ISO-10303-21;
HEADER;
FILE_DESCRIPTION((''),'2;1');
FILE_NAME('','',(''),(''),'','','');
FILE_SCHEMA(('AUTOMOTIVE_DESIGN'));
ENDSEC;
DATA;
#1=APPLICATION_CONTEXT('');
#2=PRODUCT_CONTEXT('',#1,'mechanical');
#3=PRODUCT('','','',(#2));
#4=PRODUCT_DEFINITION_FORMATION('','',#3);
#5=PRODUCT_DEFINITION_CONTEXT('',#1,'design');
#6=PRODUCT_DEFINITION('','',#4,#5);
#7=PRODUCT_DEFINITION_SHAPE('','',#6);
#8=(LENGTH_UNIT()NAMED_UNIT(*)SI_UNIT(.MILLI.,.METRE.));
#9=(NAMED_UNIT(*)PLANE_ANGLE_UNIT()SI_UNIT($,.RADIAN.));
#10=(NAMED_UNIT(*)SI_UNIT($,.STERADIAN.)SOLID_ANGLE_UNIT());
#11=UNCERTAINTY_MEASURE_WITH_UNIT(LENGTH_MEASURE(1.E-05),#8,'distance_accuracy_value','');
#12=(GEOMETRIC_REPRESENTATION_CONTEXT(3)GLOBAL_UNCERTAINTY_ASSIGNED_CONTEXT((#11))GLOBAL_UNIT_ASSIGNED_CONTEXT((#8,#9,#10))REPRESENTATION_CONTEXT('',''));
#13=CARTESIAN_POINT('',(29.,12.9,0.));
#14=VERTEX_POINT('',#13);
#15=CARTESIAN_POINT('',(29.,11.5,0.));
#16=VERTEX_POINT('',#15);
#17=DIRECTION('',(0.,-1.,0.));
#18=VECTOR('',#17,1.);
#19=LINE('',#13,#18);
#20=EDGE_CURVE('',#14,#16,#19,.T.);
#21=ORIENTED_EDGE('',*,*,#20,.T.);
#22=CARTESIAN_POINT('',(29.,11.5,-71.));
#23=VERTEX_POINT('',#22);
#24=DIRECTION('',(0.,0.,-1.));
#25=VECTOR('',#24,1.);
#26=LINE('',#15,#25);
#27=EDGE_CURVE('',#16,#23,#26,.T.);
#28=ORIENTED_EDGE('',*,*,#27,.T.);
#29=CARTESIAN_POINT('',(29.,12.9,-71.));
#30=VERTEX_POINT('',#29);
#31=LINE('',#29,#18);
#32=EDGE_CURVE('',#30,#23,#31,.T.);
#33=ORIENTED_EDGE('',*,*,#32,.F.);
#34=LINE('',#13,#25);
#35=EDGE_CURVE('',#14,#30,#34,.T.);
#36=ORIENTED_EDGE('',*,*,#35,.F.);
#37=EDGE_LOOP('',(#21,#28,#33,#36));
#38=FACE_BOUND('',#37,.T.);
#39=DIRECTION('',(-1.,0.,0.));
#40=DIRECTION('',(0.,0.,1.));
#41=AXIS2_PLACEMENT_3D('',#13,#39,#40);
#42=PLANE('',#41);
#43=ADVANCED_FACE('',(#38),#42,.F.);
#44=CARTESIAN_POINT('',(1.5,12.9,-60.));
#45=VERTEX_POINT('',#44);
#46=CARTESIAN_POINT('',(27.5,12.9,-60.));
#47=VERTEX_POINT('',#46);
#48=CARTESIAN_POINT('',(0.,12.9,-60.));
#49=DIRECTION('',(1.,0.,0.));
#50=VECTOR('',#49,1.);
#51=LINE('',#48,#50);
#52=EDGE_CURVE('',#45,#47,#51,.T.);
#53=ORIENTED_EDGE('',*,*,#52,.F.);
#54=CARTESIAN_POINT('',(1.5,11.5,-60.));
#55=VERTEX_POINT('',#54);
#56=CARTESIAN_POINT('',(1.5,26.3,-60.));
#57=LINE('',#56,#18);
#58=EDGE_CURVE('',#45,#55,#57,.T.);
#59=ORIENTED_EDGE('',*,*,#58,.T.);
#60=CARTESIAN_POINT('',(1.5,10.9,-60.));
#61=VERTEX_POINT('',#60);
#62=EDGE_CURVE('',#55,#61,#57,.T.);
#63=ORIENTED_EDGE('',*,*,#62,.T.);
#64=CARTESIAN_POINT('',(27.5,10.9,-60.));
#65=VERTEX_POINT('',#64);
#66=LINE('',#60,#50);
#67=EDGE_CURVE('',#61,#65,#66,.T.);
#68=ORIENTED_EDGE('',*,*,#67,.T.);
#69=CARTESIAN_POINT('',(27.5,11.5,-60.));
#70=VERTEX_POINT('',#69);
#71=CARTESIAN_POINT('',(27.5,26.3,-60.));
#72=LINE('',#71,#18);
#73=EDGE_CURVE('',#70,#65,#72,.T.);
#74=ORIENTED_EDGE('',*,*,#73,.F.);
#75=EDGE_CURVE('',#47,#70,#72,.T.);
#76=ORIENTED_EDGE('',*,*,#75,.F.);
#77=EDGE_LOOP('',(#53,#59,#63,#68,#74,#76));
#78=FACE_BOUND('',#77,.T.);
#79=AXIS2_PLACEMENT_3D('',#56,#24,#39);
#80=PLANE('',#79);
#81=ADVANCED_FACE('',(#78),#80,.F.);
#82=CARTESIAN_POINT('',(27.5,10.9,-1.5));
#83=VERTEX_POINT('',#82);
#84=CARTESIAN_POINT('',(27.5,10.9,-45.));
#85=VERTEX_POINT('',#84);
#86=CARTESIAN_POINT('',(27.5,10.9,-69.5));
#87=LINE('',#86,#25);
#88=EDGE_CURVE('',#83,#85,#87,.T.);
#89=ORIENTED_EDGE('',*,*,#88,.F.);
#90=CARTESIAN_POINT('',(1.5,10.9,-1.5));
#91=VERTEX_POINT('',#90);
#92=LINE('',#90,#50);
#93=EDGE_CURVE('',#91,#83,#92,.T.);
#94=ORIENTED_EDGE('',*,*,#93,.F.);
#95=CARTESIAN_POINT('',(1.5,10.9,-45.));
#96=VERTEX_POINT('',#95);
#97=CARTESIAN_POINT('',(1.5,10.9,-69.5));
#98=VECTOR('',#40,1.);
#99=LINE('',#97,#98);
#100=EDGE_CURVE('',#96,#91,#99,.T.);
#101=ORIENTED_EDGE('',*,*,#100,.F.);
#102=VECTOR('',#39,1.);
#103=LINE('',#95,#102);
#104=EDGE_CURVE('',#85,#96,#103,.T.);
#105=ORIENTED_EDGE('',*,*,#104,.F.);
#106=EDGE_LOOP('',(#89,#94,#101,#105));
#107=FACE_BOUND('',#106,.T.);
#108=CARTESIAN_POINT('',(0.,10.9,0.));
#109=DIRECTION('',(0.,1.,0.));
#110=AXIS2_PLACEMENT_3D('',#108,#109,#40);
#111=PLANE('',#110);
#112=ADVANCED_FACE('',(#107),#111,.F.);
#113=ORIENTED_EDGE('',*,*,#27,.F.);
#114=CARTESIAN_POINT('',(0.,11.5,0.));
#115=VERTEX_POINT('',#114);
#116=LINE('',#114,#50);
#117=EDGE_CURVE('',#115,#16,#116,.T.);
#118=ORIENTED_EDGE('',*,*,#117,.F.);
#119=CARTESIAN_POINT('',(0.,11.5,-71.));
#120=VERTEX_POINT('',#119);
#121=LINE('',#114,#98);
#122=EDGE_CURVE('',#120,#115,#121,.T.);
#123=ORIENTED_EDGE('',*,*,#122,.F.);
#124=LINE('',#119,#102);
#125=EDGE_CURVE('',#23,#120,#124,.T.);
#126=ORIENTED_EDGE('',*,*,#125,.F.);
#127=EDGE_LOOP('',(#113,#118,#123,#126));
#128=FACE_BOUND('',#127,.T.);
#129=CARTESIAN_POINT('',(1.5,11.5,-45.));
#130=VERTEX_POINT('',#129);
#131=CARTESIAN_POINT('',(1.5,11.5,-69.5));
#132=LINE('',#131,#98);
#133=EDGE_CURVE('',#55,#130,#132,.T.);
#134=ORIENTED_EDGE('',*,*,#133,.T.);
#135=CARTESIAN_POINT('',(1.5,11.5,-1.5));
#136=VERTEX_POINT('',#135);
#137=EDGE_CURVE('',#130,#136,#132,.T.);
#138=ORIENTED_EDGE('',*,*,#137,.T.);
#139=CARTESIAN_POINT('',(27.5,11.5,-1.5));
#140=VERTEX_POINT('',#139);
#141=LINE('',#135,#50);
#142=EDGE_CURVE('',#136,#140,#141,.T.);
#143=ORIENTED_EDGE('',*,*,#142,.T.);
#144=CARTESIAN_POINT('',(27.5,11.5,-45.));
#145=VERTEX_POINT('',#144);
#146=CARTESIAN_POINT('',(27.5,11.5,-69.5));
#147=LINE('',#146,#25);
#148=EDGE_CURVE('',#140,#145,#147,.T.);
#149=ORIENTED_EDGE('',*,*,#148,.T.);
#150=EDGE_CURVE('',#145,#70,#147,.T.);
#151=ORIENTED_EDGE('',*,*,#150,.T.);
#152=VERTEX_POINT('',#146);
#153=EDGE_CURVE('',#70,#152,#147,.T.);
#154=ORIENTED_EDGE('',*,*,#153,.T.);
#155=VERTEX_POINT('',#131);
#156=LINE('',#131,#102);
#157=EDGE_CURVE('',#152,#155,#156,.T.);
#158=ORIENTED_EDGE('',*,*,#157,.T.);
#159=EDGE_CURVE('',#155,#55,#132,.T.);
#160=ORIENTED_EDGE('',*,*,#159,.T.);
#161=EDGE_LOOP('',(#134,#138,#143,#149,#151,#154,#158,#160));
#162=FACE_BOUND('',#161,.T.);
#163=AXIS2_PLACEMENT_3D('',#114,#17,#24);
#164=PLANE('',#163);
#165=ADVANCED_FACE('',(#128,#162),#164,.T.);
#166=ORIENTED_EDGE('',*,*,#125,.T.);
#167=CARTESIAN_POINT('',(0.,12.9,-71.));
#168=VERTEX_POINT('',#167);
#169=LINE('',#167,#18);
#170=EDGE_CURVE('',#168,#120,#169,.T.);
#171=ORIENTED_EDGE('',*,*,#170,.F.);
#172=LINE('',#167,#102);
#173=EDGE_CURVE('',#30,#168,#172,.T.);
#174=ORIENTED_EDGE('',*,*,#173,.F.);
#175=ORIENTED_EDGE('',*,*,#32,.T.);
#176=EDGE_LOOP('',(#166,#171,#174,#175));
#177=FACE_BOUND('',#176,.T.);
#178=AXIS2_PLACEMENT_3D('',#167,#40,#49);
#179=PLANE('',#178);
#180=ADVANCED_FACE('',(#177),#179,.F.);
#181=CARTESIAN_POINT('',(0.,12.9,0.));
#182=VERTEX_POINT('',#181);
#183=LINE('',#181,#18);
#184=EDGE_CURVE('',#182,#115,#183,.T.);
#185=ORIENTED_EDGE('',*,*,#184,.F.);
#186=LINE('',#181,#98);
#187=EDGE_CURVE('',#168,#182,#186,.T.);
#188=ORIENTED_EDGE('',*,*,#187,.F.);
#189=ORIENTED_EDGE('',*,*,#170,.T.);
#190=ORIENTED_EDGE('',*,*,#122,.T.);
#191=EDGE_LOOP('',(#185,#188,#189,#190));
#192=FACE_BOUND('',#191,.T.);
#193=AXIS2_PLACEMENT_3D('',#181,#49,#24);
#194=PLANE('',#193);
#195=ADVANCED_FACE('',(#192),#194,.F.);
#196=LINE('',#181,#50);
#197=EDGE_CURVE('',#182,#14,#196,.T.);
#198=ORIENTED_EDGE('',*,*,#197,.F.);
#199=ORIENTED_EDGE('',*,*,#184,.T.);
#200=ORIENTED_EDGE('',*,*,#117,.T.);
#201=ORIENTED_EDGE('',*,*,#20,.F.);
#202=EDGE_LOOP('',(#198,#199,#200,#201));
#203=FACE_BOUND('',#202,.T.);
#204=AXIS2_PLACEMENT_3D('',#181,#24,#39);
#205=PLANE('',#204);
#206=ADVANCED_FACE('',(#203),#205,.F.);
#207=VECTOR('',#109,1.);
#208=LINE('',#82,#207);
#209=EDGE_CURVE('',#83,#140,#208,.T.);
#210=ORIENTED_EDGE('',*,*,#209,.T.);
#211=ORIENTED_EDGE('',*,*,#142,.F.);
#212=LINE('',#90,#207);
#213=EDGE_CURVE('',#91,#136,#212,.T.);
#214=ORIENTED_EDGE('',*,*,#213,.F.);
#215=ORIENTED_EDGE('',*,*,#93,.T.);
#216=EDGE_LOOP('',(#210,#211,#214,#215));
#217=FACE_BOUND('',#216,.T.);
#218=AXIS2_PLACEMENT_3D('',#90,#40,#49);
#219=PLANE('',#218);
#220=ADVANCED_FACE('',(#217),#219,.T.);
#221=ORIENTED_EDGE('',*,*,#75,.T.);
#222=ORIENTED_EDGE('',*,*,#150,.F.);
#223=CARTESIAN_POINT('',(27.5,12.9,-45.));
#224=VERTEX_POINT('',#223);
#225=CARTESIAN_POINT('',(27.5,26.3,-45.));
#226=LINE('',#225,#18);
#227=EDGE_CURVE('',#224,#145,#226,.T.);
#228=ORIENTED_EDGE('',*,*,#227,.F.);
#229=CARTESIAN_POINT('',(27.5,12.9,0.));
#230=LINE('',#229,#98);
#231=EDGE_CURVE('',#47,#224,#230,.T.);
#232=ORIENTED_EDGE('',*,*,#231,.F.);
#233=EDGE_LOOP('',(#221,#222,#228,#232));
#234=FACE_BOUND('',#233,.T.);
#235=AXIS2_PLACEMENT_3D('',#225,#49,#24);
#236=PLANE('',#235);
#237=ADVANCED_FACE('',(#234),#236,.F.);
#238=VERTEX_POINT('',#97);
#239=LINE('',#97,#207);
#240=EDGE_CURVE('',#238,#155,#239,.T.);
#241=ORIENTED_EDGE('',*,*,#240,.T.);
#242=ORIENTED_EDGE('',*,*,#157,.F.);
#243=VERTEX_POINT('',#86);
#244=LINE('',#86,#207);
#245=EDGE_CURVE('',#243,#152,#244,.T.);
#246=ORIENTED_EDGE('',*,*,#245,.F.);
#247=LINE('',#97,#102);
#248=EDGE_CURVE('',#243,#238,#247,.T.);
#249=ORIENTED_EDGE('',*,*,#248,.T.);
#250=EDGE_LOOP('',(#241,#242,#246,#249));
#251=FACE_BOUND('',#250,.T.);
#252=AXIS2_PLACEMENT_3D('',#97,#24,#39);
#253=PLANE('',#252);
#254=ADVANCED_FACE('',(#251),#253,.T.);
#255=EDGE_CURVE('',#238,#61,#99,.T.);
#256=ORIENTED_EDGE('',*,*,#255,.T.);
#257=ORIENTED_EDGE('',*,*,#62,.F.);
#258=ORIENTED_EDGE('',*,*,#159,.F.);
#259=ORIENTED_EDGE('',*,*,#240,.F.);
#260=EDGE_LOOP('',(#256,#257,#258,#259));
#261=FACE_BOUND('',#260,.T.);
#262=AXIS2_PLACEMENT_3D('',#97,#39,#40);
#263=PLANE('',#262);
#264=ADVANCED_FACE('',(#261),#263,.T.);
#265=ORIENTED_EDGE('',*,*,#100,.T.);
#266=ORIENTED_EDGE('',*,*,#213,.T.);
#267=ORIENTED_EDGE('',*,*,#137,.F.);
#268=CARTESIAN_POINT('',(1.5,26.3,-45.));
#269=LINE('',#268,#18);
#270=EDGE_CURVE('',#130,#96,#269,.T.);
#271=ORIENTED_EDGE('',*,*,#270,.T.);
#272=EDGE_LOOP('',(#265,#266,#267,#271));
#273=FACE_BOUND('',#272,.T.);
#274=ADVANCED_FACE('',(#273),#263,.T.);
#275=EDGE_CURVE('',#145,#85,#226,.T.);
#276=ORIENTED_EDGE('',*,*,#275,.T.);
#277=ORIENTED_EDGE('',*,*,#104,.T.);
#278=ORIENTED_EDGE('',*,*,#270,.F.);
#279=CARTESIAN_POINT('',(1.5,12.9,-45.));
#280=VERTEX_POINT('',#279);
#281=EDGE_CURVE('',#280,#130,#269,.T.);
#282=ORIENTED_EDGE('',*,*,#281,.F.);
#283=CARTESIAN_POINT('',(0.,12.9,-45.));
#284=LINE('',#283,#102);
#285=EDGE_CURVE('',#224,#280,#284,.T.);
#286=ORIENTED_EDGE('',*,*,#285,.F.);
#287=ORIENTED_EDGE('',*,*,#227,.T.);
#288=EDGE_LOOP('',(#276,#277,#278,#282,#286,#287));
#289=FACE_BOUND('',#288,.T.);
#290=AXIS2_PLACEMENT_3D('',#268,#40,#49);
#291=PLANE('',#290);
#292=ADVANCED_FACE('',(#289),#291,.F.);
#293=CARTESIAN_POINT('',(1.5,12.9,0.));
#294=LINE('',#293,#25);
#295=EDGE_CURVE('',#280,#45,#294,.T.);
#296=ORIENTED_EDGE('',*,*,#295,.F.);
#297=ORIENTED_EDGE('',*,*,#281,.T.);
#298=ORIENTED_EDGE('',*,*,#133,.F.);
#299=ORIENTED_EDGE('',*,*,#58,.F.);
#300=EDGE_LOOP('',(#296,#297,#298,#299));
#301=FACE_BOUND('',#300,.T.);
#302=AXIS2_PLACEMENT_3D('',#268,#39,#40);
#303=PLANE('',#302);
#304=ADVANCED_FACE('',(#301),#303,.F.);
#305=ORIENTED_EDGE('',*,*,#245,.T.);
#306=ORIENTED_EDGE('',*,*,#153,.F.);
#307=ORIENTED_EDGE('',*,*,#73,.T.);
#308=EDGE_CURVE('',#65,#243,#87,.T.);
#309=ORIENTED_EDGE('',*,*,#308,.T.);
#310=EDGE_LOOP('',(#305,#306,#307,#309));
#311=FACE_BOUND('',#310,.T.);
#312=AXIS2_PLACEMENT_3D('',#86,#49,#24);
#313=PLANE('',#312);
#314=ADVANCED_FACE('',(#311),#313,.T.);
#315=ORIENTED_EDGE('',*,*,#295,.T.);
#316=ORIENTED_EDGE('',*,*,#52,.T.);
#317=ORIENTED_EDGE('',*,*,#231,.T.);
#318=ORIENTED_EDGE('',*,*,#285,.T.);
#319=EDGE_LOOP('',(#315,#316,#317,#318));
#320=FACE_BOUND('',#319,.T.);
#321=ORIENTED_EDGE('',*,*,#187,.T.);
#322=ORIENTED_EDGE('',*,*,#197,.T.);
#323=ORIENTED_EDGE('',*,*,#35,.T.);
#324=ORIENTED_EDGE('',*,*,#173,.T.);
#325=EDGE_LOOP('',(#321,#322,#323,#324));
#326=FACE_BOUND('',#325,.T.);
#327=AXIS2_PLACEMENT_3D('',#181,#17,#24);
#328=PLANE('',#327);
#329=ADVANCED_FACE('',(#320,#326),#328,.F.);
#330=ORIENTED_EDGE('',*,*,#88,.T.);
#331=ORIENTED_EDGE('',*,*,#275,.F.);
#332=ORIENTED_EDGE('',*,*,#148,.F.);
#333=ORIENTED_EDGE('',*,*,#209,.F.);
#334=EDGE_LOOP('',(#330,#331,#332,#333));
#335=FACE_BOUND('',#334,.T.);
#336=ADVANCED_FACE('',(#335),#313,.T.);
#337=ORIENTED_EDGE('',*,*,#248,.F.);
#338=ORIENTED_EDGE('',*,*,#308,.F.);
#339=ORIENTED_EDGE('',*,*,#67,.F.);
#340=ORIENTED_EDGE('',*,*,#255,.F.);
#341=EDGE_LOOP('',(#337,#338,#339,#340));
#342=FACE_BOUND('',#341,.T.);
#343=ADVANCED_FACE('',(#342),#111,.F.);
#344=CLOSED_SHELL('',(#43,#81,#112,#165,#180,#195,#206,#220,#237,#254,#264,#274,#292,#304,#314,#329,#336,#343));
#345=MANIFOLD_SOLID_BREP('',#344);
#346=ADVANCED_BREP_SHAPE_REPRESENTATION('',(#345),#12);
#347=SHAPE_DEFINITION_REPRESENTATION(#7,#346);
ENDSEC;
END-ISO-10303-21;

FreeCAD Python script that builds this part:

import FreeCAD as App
import Part
import Sketcher

V = App.Vector


def add_polygon(sketch, points):
    """Adds a closed chain of lines whose ends are joined by coincident constraints."""
    first, n = sketch.GeometryCount, len(points)
    for a, b in zip(points, points[1:] + points[:1]):
        sketch.addGeometry(Part.LineSegment(App.Vector(*a, 0), App.Vector(*b, 0)), False)
    for i in range(n):
        sketch.addConstraint(Sketcher.Constraint("Coincident", first + i, 2, first + (i + 1) % n, 1))

doc = App.newDocument("Part")
params = doc.addObject("Spreadsheet::Sheet", "Params")
for row, (alias, value) in enumerate([
    ("sketch1_width", "26 mm"),
    ("sketch1_height", "68 mm"),
    ("pad1_length", "0.6 mm"),
    ("sketch2_width", "29 mm"),
    ("sketch2_height", "71 mm"),
    ("pad2_length", "1.4 mm"),
    ("sketch3_width", "26 mm"),
    ("sketch3_height", "15 mm"),
    ("pocket1_length", "15.4 mm"),
], start=1):
    params.set(f"A{row}", alias)
    params.set(f"B{row}", "=" + value)
    params.setAlias(f"B{row}", alias)

body = doc.addObject("PartDesign::Body", "Body")

# Sketch on XZ plane
sketch1 = body.newObject("Sketcher::SketchObject", "Sketch")
sketch1.AttachmentSupport = (doc.getObject("XZ_Plane"), [""])
sketch1.MapMode = "FlatFace"
sketch1.AttachmentOffset = App.Placement(V(0, 0, -11.5), App.Rotation())
add_polygon(sketch1, [(1.5, -69.5), (1.5, -1.5), (27.5, -1.5), (27.5, -69.5)])  # lines 0-3
sketch1.addConstraint([
    Sketcher.Constraint("Vertical", 0),
    Sketcher.Constraint("Horizontal", 1),
    Sketcher.Constraint("Vertical", 2),
    Sketcher.Constraint("Horizontal", 3),
    Sketcher.Constraint("DistanceX", 1, 1, 1, 2, 26.0),
    Sketcher.Constraint("DistanceY", 0, 1, 0, 2, 68.0),
    Sketcher.Constraint("DistanceX", -1, 1, 0, 2, 1.5),
    Sketcher.Constraint("DistanceY", 0, 2, -1, 1, 1.5),
])
sketch1.setExpression("Constraints[8]", "Params.sketch1_width")
sketch1.setExpression("Constraints[9]", "Params.sketch1_height")
pad1 = body.newObject("PartDesign::Pad", "Pad")
pad1.Profile = sketch1
pad1.setExpression("Length", "Params.pad1_length")

# Sketch on XZ plane
sketch2 = body.newObject("Sketcher::SketchObject", "Sketch001")
sketch2.AttachmentSupport = (doc.getObject("XZ_Plane"), [""])
sketch2.MapMode = "FlatFace"
sketch2.AttachmentOffset = App.Placement(V(0, 0, -11.5), App.Rotation())
add_polygon(sketch2, [(0, -71), (0, 0), (29, 0), (29, -71)])  # lines 0-3
sketch2.addConstraint([
    Sketcher.Constraint("Vertical", 0),
    Sketcher.Constraint("Horizontal", 1),
    Sketcher.Constraint("Vertical", 2),
    Sketcher.Constraint("Horizontal", 3),
    Sketcher.Constraint("Coincident", 0, 2, -1, 1),
    Sketcher.Constraint("DistanceX", 1, 1, 1, 2, 29.0),
    Sketcher.Constraint("DistanceY", 0, 1, 0, 2, 71.0),
])
sketch2.setExpression("Constraints[9]", "Params.sketch2_width")
sketch2.setExpression("Constraints[10]", "Params.sketch2_height")
pad2 = body.newObject("PartDesign::Pad", "Pad001")
pad2.Profile = sketch2
pad2.setExpression("Length", "Params.pad2_length")
pad2.Reversed = True

# Sketch on XZ plane
sketch3 = body.newObject("Sketcher::SketchObject", "Sketch002")
sketch3.AttachmentSupport = (doc.getObject("XZ_Plane"), [""])
sketch3.MapMode = "FlatFace"
sketch3.AttachmentOffset = App.Placement(V(0, 0, -10.9), App.Rotation())
add_polygon(sketch3, [(1.5, -45), (1.5, -60), (27.5, -60), (27.5, -45)])  # lines 0-3
sketch3.addConstraint([
    Sketcher.Constraint("Vertical", 0),
    Sketcher.Constraint("Horizontal", 1),
    Sketcher.Constraint("Vertical", 2),
    Sketcher.Constraint("Horizontal", 3),
    Sketcher.Constraint("DistanceX", 1, 1, 1, 2, 26.0),
    Sketcher.Constraint("DistanceY", 0, 2, 0, 1, 15.0),
    Sketcher.Constraint("DistanceY", 0, 2, -1, 1, 60.0),
    Sketcher.Constraint("DistanceX", -1, 1, 0, 2, 1.5),
])
sketch3.setExpression("Constraints[8]", "Params.sketch3_width")
sketch3.setExpression("Constraints[9]", "Params.sketch3_height")
pocket1 = body.newObject("PartDesign::Pocket", "Pocket")
pocket1.Profile = sketch3
pocket1.setExpression("Length", "Params.pocket1_length")

doc.recompute()
